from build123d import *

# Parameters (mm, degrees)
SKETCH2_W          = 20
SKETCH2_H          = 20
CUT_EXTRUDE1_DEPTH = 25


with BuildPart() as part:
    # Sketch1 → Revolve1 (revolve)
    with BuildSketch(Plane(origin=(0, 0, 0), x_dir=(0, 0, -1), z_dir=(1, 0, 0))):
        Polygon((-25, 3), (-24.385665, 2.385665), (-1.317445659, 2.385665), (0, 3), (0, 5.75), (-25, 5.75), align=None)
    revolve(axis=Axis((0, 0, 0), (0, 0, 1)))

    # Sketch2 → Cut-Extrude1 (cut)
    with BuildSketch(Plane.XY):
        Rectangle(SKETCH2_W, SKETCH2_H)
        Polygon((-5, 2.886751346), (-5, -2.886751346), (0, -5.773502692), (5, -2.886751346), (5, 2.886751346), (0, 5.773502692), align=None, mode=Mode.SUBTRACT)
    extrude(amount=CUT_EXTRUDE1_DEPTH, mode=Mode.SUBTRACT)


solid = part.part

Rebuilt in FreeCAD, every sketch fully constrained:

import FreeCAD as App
import Part
import Sketcher
from FreeCAD import Vector
Q = App.Units.Quantity

doc = App.newDocument("Part")
body = doc.addObject("PartDesign::Body", "Body")

# Sketch on YZ plane
sketch1 = body.newObject("Sketcher::SketchObject", "Sketch")
sketch1.AttachmentSupport = (doc.getObject("YZ_Plane"), [""])
sketch1.MapMode = "FlatFace"
sketch1.addGeometry([
    Part.LineSegment(Vector(3, 25, 0), Vector(2.385665, 24.385665, 0)),  # 0
    Part.LineSegment(Vector(2.385665, 24.385665, 0), Vector(2.385665, 1.317446, 0)),  # 1
    Part.LineSegment(Vector(2.385665, 1.317446, 0), Vector(3, 0, 0)),  # 2
    Part.LineSegment(Vector(3, 0, 0), Vector(5.75, 0, 0)),  # 3
    Part.LineSegment(Vector(5.75, 0, 0), Vector(5.75, 25, 0)),  # 4
    Part.LineSegment(Vector(5.75, 25, 0), Vector(3, 25, 0)),  # 5
], False)
sketch1.addConstraint([
    Sketcher.Constraint("Coincident", 0, 2, 1, 1),
    Sketcher.Constraint("Coincident", 1, 2, 2, 1),
    Sketcher.Constraint("Coincident", 2, 2, 3, 1),
    Sketcher.Constraint("Coincident", 3, 2, 4, 1),
    Sketcher.Constraint("Coincident", 4, 2, 5, 1),
    Sketcher.Constraint("Coincident", 5, 2, 0, 1),
    Sketcher.Constraint("Vertical", 1),
    Sketcher.Constraint("Horizontal", 3),
    Sketcher.Constraint("Vertical", 4),
    Sketcher.Constraint("Horizontal", 5),
    Sketcher.Constraint("PointOnObject", 2, 2, -1),
    Sketcher.Constraint("Vertical", 2, 2, 5, 2),
    Sketcher.Constraint("DistanceY", 4, 1, 4, 2, 25.0),
    Sketcher.Constraint("Angle", 0, Q("-135 deg")),
    Sketcher.Constraint("Angle", 2, Q("-65 deg")),
    Sketcher.Constraint("DistanceX", -1, 1, 2, 2, 3.0),
    Sketcher.Constraint("DistanceX", 3, 1, 3, 2, 2.75),
    Sketcher.Constraint("Distance", 0, 0.868801),
])
revolution = body.newObject("PartDesign::Revolution", "Revolution")
revolution.Profile = sketch1
revolution.ReferenceAxis = (sketch1, ["V_Axis"])
revolution.Angle = 360

# Sketch on XY plane
sketch2 = body.newObject("Sketcher::SketchObject", "Sketch001")
sketch2.AttachmentSupport = (doc.getObject("XY_Plane"), [""])
sketch2.MapMode = "FlatFace"
sketch2.addGeometry([
    Part.LineSegment(Vector(-10, 10, 0), Vector(-10, -10, 0)),  # 0
    Part.LineSegment(Vector(-10, -10, 0), Vector(10, -10, 0)),  # 1
    Part.LineSegment(Vector(10, -10, 0), Vector(10, 10, 0)),  # 2
    Part.LineSegment(Vector(10, 10, 0), Vector(-10, 10, 0)),  # 3
    Part.LineSegment(Vector(-5, -2.886751, 0), Vector(-5, 2.886751, 0)),  # 4
    Part.LineSegment(Vector(-5, 2.886751, 0), Vector(0, 5.773503, 0)),  # 5
    Part.LineSegment(Vector(0, 5.773503, 0), Vector(5, 2.886751, 0)),  # 6
    Part.LineSegment(Vector(5, 2.886751, 0), Vector(5, -2.886751, 0)),  # 7
    Part.LineSegment(Vector(5, -2.886751, 0), Vector(0, -5.773503, 0)),  # 8
    Part.LineSegment(Vector(0, -5.773503, 0), Vector(-5, -2.886751, 0)),  # 9
], False)
sketch2.addConstraint([
    Sketcher.Constraint("Coincident", 0, 2, 1, 1),
    Sketcher.Constraint("Coincident", 1, 2, 2, 1),
    Sketcher.Constraint("Coincident", 2, 2, 3, 1),
    Sketcher.Constraint("Coincident", 3, 2, 0, 1),
    Sketcher.Constraint("Coincident", 4, 2, 5, 1),
    Sketcher.Constraint("Coincident", 5, 2, 6, 1),
    Sketcher.Constraint("Coincident", 6, 2, 7, 1),
    Sketcher.Constraint("Coincident", 7, 2, 8, 1),
    Sketcher.Constraint("Coincident", 8, 2, 9, 1),
    Sketcher.Constraint("Coincident", 9, 2, 4, 1),
    Sketcher.Constraint("Vertical", 0),
    Sketcher.Constraint("Horizontal", 1),
    Sketcher.Constraint("Vertical", 2),
    Sketcher.Constraint("Horizontal", 3),
    Sketcher.Constraint("Vertical", 4),
    Sketcher.Constraint("Vertical", 7),
    Sketcher.Constraint("Symmetric", 0, 2, 2, 2, -1, 1),
    Sketcher.Constraint("Symmetric", 4, 2, 7, 2, -1, 1),
    Sketcher.Constraint("Symmetric", 5, 2, 8, 2, -1, 1),
    Sketcher.Constraint("PointOnObject", 5, 2, -2),
    Sketcher.Constraint("Parallel", 6, 9),
    Sketcher.Constraint("Horizontal", 4, 2, 6, 2),
    Sketcher.Constraint("Equal", 3, 0),
    Sketcher.Constraint("DistanceX", 1, 1, 1, 2, 20.0),
    Sketcher.Constraint("Angle", 5, Q("30 deg")),
    Sketcher.Constraint("DistanceX", 4, 2, -1, 1, 5.0),
    Sketcher.Constraint("DistanceY", 4, 1, 4, 2, 5.773503),
])
pocket1 = body.newObject("PartDesign::Pocket", "Pocket")
pocket1.Profile = sketch2
pocket1.Length = 25
pocket1.Reversed = True

doc.recompute()
